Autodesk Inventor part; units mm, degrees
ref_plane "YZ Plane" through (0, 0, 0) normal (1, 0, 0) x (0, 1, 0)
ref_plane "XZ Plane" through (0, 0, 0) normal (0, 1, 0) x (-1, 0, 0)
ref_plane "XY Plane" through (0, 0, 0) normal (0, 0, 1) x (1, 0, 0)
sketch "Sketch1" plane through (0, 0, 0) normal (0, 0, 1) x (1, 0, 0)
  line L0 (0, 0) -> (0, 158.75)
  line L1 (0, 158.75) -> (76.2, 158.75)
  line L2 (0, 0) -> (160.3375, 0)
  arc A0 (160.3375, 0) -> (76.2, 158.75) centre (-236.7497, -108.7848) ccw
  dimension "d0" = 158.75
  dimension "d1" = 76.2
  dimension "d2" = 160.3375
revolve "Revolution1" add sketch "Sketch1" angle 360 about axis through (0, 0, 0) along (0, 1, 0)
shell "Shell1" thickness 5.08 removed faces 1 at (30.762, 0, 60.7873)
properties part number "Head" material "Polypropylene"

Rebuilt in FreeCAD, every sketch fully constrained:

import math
import FreeCAD as App
import Part
import Sketcher
Q = App.Units.Quantity


def faces_at(feature, points):
    """Names of the faces that lie closest to the given points."""
    faces = feature.Shape.Faces
    near = lambda p: min(range(len(faces)), key=lambda i: faces[i].distToShape(Part.Vertex(*p))[0])
    return sorted({f"Face{near(p) + 1}" for p in points})

doc = App.newDocument("Part")
params = doc.addObject("Spreadsheet::Sheet", "Params")
for row, (alias, value) in enumerate([
    ("sketch1_width", "3 in"),
    ("sketch1_height", "6.25 in"),
    ("sketch1_width2", "6.3125 in"),
    ("revolution_angle", "360 deg"),
    ("thickness_wall", "0.2 in"),
], start=1):
    params.set(f"A{row}", alias)
    params.set(f"B{row}", "=" + value)
    params.setAlias(f"B{row}", alias)

body = doc.addObject("PartDesign::Body", "Body")

# Sketch on XY plane
sketch1 = body.newObject("Sketcher::SketchObject", "Sketch")
sketch1.AttachmentSupport = (doc.getObject("XY_Plane"), [""])
sketch1.MapMode = "FlatFace"
sketch1.addGeometry([
    Part.LineSegment(App.Vector(0, 158.75, 0), App.Vector(0, 0, 0)),
    Part.LineSegment(App.Vector(0, 0, 0), App.Vector(160.3375, 0, 0)),
    Part.ArcOfCircle(Part.Circle(App.Vector(-236.7497, -108.7848, 0), App.Vector(0, 0, 1), 411.718808), math.radians(15.320676), math.radians(40.526508)),
    Part.LineSegment(App.Vector(76.2, 158.75, 0), App.Vector(0, 158.75, 0)),
], False)
sketch1.addConstraint([
    Sketcher.Constraint("Coincident", 0, 2, 1, 1),
    Sketcher.Constraint("Coincident", 1, 2, 2, 1),
    Sketcher.Constraint("Coincident", 2, 2, 3, 1),
    Sketcher.Constraint("Coincident", 3, 2, 0, 1),
    Sketcher.Constraint("Vertical", 0),
    Sketcher.Constraint("Horizontal", 1),
    Sketcher.Constraint("Horizontal", 3),
    Sketcher.Constraint("Coincident", 0, 2, -1, 1),
    Sketcher.Constraint("DistanceX", 3, 2, 3, 1, Q("3 in")),
    Sketcher.Constraint("DistanceY", 0, 2, 0, 1, Q("6.25 in")),
    Sketcher.Constraint("DistanceX", 1, 1, 1, 2, Q("6.3125 in")),
    Sketcher.Constraint("Radius", 2, Q("16.2094 in")),
])
sketch1.setExpression("Constraints[8]", "Params.sketch1_width")
sketch1.setExpression("Constraints[9]", "Params.sketch1_height")
sketch1.setExpression("Constraints[10]", "Params.sketch1_width2")
revolution = body.newObject("PartDesign::Revolution", "Revolution")
revolution.Profile = sketch1
revolution.ReferenceAxis = (sketch1, ["V_Axis"])
revolution.setExpression("Angle", "Params.revolution_angle")
doc.recompute()

thickness = body.newObject("PartDesign::Thickness", "Thickness")
thickness.Base = (revolution, faces_at(revolution, [(30.762, 0, 60.787)]))
thickness.setExpression("Value", "Params.thickness_wall")
thickness.Reversed = True
thickness.Join = "Intersection"

doc.recompute()
